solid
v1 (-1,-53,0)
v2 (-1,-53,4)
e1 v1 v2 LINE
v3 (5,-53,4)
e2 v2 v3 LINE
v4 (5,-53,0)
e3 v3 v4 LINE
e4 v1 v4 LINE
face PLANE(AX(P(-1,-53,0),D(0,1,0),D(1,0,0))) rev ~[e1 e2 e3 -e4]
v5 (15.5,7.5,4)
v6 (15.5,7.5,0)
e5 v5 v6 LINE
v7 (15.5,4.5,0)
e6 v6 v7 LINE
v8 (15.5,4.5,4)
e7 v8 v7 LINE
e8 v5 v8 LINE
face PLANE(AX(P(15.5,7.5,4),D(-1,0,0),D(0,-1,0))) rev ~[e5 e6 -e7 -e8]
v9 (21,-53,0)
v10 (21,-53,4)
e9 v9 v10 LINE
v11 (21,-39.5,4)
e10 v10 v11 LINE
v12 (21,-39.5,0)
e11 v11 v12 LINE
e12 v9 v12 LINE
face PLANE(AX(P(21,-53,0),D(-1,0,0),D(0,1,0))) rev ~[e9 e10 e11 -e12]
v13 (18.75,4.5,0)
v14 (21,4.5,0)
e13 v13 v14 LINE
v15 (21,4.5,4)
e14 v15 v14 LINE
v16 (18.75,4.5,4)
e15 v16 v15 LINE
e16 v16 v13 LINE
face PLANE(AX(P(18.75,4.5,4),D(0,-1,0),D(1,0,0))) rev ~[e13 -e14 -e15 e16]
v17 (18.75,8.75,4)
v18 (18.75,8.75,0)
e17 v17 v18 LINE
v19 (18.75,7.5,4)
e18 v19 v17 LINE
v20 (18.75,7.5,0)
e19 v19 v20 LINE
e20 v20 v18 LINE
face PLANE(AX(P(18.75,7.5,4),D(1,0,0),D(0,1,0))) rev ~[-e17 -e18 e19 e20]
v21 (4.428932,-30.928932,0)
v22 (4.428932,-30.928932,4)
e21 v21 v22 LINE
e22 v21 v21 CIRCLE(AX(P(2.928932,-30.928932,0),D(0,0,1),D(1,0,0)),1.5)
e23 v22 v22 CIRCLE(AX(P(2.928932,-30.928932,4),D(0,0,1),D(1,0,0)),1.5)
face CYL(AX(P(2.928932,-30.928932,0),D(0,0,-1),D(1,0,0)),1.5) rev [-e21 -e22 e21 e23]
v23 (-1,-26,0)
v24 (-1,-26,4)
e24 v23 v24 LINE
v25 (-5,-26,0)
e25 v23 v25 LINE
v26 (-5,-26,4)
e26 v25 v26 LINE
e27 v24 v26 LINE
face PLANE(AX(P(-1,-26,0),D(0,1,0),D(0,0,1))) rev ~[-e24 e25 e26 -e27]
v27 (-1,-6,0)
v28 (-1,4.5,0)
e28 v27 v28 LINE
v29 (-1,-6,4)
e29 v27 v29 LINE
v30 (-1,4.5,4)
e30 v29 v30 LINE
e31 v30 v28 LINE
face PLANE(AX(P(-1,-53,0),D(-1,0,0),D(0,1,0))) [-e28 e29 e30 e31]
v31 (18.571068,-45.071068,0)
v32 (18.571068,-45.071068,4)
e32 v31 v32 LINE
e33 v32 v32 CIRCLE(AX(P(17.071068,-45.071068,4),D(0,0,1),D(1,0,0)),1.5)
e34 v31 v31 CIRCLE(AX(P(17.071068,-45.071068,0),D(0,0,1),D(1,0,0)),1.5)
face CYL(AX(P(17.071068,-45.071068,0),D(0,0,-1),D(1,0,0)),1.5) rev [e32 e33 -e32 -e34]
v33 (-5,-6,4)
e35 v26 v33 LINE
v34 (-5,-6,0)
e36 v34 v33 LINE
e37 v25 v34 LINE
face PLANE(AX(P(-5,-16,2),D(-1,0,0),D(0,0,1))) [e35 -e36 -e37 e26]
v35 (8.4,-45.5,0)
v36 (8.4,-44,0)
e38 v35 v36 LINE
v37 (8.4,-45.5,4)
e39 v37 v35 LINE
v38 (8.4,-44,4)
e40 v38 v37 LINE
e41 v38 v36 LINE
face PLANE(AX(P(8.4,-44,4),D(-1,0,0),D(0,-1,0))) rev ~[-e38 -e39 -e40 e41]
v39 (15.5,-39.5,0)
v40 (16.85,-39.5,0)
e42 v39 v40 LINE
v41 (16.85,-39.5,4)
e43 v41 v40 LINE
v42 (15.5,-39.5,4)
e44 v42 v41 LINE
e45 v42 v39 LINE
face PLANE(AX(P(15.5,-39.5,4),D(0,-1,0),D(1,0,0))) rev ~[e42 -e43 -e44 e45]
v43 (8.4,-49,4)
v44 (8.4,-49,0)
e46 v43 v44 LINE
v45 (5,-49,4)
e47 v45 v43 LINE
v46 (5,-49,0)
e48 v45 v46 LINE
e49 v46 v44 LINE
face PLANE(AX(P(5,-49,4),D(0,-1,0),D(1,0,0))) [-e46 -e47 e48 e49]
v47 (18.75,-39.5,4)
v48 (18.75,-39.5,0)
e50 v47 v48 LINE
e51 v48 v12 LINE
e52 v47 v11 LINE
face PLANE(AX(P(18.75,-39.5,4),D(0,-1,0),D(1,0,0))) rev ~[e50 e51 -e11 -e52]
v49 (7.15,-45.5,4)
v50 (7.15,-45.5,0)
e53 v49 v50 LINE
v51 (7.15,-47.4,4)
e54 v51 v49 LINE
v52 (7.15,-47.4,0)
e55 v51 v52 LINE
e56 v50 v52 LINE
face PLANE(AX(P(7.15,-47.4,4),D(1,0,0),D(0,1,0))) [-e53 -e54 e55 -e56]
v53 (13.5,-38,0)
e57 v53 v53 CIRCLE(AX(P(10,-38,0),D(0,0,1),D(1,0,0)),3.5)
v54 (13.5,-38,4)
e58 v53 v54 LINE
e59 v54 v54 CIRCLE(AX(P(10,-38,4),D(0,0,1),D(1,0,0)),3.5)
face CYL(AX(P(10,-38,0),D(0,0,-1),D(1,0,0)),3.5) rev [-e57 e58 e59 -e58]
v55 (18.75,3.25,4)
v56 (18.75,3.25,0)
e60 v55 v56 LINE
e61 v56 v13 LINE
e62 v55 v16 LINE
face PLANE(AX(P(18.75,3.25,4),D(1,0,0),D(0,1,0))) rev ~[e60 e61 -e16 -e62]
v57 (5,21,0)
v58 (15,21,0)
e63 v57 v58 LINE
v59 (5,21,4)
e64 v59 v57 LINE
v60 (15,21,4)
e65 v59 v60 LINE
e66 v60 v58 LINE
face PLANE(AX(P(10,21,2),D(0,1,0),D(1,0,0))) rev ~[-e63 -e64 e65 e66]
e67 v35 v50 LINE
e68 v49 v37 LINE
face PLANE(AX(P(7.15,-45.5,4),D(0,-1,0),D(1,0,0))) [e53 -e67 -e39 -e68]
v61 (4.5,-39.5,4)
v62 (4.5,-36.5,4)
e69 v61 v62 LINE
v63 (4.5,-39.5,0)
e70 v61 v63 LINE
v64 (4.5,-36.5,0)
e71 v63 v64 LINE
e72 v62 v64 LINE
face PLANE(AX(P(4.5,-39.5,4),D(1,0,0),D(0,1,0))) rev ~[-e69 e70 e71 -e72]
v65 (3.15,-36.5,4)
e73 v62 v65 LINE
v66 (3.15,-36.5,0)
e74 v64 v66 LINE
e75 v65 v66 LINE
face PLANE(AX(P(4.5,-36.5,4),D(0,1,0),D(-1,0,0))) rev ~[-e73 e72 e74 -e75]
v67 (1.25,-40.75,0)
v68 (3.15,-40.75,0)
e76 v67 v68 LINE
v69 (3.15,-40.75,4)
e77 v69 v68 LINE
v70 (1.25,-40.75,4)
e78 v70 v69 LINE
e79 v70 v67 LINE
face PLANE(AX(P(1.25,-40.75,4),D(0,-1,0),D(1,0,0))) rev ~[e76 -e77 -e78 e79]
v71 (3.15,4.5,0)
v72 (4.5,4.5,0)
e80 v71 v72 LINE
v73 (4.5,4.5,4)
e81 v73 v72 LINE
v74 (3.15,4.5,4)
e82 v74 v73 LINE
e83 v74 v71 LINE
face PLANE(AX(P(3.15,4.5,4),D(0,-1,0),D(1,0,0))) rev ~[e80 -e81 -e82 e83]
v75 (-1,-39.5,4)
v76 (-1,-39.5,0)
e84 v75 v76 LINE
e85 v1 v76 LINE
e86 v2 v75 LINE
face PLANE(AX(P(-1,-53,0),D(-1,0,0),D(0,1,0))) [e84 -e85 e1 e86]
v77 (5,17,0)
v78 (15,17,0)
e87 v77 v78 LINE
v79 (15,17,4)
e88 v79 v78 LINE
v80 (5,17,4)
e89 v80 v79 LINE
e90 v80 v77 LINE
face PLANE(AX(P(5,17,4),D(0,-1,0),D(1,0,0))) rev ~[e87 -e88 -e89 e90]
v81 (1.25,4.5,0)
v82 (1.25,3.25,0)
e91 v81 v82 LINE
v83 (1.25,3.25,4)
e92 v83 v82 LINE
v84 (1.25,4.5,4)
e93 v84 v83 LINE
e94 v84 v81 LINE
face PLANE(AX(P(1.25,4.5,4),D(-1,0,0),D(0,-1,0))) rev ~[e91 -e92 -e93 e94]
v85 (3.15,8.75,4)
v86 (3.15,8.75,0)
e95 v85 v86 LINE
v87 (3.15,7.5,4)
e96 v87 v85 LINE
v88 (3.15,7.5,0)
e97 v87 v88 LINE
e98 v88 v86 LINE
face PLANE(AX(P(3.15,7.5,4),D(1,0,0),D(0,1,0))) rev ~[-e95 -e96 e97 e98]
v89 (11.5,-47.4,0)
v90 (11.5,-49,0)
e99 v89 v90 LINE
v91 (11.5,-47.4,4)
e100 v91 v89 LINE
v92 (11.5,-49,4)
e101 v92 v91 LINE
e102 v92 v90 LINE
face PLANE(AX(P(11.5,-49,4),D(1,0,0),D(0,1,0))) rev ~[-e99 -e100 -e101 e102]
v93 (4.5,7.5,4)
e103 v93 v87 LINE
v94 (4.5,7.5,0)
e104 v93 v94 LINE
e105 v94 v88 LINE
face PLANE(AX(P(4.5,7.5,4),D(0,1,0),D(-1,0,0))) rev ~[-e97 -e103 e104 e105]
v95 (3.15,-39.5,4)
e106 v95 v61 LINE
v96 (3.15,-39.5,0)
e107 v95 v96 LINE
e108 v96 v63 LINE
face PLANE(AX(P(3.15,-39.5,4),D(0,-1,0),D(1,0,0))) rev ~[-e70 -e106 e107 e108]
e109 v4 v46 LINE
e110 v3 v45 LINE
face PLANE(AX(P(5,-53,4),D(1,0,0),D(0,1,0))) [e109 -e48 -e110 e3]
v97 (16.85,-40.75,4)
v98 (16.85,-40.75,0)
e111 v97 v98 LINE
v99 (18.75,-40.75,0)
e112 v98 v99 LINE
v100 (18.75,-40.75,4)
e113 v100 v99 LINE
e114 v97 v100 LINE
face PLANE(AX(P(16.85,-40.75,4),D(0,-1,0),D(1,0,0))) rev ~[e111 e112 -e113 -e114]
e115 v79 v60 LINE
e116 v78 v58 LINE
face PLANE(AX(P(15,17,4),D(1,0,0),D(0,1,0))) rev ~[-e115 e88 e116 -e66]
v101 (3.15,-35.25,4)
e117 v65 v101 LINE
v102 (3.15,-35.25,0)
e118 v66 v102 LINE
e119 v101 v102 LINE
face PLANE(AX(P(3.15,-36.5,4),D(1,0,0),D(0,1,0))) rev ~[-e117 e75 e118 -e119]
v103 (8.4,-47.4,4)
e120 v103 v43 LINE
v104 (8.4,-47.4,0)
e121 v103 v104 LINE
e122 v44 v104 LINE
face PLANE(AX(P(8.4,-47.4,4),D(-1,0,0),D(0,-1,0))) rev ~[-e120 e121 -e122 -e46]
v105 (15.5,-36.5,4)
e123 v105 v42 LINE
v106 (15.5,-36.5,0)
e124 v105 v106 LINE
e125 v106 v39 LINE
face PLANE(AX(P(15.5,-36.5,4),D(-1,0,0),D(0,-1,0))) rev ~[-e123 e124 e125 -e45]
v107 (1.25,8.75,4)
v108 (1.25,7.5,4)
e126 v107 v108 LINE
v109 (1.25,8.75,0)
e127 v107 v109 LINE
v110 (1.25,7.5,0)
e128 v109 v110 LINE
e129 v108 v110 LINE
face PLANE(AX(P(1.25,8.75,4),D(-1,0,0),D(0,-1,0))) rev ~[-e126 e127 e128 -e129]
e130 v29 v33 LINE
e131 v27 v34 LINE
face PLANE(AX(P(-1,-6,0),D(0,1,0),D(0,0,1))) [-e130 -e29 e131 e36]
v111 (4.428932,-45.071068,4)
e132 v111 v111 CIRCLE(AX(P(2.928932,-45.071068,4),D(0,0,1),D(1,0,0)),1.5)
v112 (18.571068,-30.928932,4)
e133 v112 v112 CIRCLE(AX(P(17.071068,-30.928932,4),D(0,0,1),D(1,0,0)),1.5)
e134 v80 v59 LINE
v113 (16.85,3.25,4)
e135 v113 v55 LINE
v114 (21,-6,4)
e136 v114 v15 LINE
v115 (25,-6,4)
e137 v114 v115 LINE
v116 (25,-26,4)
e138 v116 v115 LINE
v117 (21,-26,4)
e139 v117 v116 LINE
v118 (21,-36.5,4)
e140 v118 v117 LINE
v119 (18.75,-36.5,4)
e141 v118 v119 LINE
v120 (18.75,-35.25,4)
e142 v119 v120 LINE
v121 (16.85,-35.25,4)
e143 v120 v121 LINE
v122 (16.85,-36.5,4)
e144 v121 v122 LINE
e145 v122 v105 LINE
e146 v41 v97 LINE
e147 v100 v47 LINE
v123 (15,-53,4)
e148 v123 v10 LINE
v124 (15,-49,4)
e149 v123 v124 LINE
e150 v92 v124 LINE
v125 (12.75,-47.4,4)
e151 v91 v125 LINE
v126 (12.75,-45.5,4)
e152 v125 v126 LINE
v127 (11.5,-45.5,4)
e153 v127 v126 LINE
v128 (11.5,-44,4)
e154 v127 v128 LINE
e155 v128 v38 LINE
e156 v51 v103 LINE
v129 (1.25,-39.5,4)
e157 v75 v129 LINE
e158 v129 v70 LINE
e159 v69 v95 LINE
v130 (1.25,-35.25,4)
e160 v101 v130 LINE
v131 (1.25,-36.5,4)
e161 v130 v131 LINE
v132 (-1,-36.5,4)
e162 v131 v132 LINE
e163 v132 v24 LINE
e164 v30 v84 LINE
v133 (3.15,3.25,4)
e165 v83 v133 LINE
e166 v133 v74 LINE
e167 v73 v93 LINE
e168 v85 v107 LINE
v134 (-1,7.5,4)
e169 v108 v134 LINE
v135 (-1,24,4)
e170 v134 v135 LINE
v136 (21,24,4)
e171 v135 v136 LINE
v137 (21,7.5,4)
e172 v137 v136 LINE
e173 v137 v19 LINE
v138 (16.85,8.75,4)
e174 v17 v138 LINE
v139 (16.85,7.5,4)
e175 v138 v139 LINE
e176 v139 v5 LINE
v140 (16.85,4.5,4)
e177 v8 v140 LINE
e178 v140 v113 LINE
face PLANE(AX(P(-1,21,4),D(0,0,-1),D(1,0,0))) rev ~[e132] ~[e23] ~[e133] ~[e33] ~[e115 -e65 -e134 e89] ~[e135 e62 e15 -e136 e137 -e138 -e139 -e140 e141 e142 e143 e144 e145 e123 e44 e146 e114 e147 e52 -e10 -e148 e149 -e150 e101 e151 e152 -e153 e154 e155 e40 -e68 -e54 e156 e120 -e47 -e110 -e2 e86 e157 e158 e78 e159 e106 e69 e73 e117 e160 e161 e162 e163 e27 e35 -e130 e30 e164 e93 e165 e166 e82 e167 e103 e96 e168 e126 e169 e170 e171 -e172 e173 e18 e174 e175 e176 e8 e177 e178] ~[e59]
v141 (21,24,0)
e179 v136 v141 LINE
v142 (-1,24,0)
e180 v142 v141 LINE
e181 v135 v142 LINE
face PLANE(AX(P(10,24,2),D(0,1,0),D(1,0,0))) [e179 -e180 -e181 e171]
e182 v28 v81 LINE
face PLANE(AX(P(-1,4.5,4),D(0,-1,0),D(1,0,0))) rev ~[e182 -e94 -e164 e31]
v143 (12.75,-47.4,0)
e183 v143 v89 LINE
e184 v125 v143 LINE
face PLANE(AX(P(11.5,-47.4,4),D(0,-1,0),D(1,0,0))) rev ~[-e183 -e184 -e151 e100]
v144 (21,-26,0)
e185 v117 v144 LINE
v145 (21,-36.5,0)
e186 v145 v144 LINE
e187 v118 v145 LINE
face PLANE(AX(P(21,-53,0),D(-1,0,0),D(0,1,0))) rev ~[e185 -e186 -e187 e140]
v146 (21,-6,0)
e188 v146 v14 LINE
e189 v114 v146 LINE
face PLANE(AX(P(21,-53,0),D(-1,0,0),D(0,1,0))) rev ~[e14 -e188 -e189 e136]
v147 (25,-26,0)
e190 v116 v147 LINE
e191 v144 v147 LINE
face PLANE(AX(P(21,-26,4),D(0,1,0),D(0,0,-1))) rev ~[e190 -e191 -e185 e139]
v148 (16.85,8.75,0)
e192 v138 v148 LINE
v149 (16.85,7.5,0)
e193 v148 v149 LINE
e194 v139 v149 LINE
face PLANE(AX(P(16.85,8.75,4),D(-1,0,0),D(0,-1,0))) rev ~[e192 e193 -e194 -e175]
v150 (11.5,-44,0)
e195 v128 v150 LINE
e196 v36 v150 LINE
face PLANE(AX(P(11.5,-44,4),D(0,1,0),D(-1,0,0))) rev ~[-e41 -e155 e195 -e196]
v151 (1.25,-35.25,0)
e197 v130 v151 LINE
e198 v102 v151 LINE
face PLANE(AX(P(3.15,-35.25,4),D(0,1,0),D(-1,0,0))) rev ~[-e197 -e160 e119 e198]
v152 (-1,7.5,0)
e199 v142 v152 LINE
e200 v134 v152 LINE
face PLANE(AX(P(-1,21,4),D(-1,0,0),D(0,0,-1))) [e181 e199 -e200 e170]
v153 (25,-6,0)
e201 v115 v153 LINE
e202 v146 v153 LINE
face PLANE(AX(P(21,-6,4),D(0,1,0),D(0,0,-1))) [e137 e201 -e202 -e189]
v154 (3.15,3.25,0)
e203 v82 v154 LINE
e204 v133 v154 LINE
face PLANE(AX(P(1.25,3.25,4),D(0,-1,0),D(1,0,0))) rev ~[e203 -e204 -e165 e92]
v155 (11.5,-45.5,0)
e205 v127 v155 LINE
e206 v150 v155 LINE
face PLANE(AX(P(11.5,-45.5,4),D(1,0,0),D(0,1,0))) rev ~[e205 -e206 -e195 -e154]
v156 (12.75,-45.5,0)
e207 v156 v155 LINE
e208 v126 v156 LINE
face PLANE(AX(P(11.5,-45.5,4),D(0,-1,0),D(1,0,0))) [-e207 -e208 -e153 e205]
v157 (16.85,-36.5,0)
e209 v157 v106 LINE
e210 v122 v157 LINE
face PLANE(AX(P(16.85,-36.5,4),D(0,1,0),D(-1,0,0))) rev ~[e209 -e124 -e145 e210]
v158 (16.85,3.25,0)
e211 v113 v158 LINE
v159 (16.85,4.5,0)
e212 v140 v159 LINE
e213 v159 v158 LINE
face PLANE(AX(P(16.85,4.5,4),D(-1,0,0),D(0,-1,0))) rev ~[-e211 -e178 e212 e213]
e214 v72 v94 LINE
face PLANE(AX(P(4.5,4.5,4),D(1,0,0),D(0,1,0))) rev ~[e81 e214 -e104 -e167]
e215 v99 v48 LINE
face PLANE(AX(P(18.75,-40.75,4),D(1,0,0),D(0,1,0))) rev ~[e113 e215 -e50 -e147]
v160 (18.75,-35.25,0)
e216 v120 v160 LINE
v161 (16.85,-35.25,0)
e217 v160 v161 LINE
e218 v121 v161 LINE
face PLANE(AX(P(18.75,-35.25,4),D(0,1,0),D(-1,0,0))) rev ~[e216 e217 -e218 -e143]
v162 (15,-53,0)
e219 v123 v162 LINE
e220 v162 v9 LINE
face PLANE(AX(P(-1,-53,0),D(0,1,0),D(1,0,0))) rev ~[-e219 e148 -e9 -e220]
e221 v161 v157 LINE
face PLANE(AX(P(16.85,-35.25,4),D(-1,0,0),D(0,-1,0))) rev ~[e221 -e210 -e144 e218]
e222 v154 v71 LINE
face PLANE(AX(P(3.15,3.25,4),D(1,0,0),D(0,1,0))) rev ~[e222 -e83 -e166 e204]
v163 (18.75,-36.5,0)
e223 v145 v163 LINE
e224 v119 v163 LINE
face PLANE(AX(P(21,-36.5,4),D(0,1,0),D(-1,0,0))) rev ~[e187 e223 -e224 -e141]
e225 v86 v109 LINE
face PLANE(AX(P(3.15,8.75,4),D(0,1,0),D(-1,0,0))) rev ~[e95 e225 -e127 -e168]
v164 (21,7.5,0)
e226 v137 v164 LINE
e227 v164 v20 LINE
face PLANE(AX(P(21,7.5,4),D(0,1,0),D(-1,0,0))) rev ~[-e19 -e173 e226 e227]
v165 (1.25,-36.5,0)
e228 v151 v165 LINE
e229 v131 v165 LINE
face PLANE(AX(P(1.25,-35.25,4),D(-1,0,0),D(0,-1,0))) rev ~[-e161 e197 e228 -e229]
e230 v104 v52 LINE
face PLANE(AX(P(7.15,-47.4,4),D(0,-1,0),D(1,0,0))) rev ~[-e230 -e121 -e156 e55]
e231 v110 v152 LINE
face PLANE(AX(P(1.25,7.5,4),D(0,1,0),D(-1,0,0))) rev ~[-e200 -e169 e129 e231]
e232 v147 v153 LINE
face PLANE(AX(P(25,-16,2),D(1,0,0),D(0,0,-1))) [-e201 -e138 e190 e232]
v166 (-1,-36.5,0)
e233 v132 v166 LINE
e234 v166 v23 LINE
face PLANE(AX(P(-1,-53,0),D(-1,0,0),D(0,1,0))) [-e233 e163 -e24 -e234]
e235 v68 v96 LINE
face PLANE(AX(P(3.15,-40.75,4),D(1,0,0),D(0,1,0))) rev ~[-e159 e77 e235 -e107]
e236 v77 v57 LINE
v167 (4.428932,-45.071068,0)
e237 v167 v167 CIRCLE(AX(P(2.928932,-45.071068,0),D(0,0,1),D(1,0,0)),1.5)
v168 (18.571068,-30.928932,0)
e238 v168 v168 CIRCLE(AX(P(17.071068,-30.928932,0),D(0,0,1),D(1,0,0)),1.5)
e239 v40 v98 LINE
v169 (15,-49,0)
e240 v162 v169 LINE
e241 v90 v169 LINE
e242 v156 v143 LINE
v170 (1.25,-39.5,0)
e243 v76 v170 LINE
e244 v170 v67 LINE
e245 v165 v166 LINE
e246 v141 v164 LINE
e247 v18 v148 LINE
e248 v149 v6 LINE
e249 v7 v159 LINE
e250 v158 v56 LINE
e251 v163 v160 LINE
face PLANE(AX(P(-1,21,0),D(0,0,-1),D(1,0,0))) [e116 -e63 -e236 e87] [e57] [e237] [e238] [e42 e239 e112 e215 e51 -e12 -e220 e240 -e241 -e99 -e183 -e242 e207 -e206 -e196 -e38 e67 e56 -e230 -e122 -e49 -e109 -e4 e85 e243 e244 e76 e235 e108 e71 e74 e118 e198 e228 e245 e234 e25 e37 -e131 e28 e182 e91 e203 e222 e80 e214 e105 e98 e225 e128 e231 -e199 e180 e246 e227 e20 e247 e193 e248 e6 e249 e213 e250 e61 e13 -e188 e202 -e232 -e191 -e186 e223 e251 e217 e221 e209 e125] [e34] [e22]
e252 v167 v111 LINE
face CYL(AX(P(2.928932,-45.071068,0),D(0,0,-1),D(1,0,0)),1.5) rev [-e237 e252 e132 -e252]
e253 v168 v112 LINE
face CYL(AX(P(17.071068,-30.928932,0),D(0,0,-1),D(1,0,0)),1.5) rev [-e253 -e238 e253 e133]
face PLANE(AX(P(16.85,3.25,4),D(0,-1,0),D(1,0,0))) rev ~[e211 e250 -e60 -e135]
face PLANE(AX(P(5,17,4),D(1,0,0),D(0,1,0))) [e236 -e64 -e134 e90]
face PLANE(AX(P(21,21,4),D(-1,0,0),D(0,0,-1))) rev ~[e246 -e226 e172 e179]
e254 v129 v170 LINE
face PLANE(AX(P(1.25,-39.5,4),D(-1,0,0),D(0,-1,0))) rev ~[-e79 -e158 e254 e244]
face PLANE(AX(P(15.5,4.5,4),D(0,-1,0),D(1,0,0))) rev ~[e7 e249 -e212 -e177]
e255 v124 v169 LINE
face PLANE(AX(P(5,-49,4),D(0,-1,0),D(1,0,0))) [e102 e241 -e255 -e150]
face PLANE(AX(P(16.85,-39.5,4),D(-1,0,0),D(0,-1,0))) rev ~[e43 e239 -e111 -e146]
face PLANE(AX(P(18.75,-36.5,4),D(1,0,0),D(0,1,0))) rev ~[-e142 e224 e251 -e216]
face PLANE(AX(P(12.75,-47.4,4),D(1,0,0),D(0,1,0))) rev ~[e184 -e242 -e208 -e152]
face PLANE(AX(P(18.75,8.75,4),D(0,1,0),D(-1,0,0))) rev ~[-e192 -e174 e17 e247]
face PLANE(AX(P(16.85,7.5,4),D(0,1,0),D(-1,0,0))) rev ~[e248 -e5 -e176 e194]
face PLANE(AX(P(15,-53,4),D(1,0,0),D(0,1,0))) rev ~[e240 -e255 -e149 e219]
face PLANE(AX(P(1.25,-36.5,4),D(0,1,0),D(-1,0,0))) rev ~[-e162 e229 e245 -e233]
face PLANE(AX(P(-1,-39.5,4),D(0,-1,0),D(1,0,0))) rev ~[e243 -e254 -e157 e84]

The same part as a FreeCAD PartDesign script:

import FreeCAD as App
import Part
import Sketcher

V = App.Vector

doc = App.newDocument("Part")
body = doc.addObject("PartDesign::Body", "Body")

# Sketch on XY plane
sketch1 = body.newObject("Sketcher::SketchObject", "Sketch")
sketch1.AttachmentSupport = (doc.getObject("XY_Plane"), [""])
sketch1.MapMode = "FlatFace"
sketch1.addGeometry([
    Part.LineSegment(V(-1, 21, 0), V(-1, -53, 0)),  # 0
    Part.LineSegment(V(-1, -53, 0), V(21, -53, 0)),  # 1
    Part.LineSegment(V(21, -53, 0), V(21, 21, 0)),  # 2
    Part.LineSegment(V(21, 21, 0), V(-1, 21, 0)),  # 3
    Part.Circle(V(10, -38, 0), V(0, 0, 1), 3.5),  # 4
], False)
sketch1.addConstraint([
    Sketcher.Constraint("Coincident", 0, 2, 1, 1),
    Sketcher.Constraint("Coincident", 1, 2, 2, 1),
    Sketcher.Constraint("Coincident", 2, 2, 3, 1),
    Sketcher.Constraint("Coincident", 3, 2, 0, 1),
    Sketcher.Constraint("Vertical", 0),
    Sketcher.Constraint("Horizontal", 1),
    Sketcher.Constraint("Vertical", 2),
    Sketcher.Constraint("Horizontal", 3),
    Sketcher.Constraint("Diameter", 4, 7.0),
    Sketcher.Constraint("DistanceX", 1, 1, 1, 2, 22.0),
    Sketcher.Constraint("DistanceY", 0, 2, 0, 1, 74.0),
    Sketcher.Constraint("DistanceX", -1, 1, 4, 3, 10.0),
    Sketcher.Constraint("DistanceY", 4, 3, -1, 1, 38.0),
    Sketcher.Constraint("DistanceX", 0, 2, -1, 1, 1.0),
    Sketcher.Constraint("DistanceY", 0, 2, -1, 1, 53.0),
])
pad1 = body.newObject("PartDesign::Pad", "Pad")
pad1.Profile = sketch1
pad1.Length = 4

# Sketch on XY plane
sketch2 = body.newObject("Sketcher::SketchObject", "Sketch001")
sketch2.AttachmentSupport = (doc.getObject("XY_Plane"), [""])
sketch2.MapMode = "FlatFace"
sketch2.addGeometry([
    Part.Circle(V(10, -38, 0), V(0, 0, 1), 3.5),  # 0
    Part.Circle(V(2.9, -30.9, 0), V(0, 0, 1), 1.5),  # 1
    Part.Circle(V(17.1, -30.9, 0), V(0, 0, 1), 1.5),  # 2
    Part.Circle(V(17.1, -45.1, 0), V(0, 0, 1), 1.5),  # 3
    Part.Circle(V(2.9, -45.1, 0), V(0, 0, 1), 1.5),  # 4
], False)
sketch2.addConstraint([
    Sketcher.Constraint("Equal", 1, 2),
    Sketcher.Constraint("Equal", 2, 3),
    Sketcher.Constraint("Equal", 3, 4),
    Sketcher.Constraint("Horizontal", 1, 3, 2, 3),
    Sketcher.Constraint("Horizontal", 3, 3, 4, 3),
    Sketcher.Constraint("Vertical", 2, 3, 3, 3),
    Sketcher.Constraint("Vertical", 1, 3, 4, 3),
    Sketcher.Constraint("Diameter", 0, 7.0),
    Sketcher.Constraint("Diameter", 1, 3.0),
    Sketcher.Constraint("DistanceX", -1, 1, 0, 3, 10.0),
    Sketcher.Constraint("DistanceY", 0, 3, -1, 1, 38.0),
    Sketcher.Constraint("DistanceX", -1, 1, 1, 3, 2.928932),
    Sketcher.Constraint("DistanceY", 1, 3, -1, 1, 30.928932),
    Sketcher.Constraint("DistanceX", -1, 1, 2, 3, 17.071068),
    Sketcher.Constraint("DistanceY", 3, 3, -1, 1, 45.071068),
])
pocket1 = body.newObject("PartDesign::Pocket", "Pocket")
pocket1.Profile = sketch2
pocket1.Length = 4
pocket1.Reversed = True

# Sketch on XY plane
sketch3 = body.newObject("Sketcher::SketchObject", "Sketch002")
sketch3.AttachmentSupport = (doc.getObject("XY_Plane"), [""])
sketch3.MapMode = "FlatFace"
sketch3.AttachmentOffset = App.Placement(V(0, 0, 4), App.Rotation())
sketch3.addGeometry([
    Part.LineSegment(V(1.2, -36.5, 0), V(-1, -36.5, 0)),  # 0
    Part.LineSegment(V(-1, -36.5, 0), V(-1, -39.5, 0)),  # 1
    Part.LineSegment(V(-1, -39.5, 0), V(1.2, -39.5, 0)),  # 2
    Part.LineSegment(V(1.2, -39.5, 0), V(1.2, -40.8, 0)),  # 3
    Part.LineSegment(V(1.2, -40.8, 0), V(3.1, -40.8, 0)),  # 4
    Part.LineSegment(V(3.1, -40.8, 0), V(3.1, -39.5, 0)),  # 5
    Part.LineSegment(V(3.1, -39.5, 0), V(4.5, -39.5, 0)),  # 6
    Part.LineSegment(V(4.5, -39.5, 0), V(4.5, -36.5, 0)),  # 7
    Part.LineSegment(V(4.5, -36.5, 0), V(3.1, -36.5, 0)),  # 8
    Part.LineSegment(V(3.1, -36.5, 0), V(3.1, -35.2, 0)),  # 9
    Part.LineSegment(V(3.1, -35.2, 0), V(1.2, -35.2, 0)),  # 10
    Part.LineSegment(V(1.2, -35.2, 0), V(1.2, -36.5, 0)),  # 11
    Part.LineSegment(V(18.8, -39.5, 0), V(21, -39.5, 0)),  # 12
    Part.LineSegment(V(21, -39.5, 0), V(21, -36.5, 0)),  # 13
    Part.LineSegment(V(21, -36.5, 0), V(18.8, -36.5, 0)),  # 14
    Part.LineSegment(V(18.8, -36.5, 0), V(18.8, -35.2, 0)),  # 15
    Part.LineSegment(V(18.8, -35.2, 0), V(16.9, -35.2, 0)),  # 16
    Part.LineSegment(V(16.9, -35.2, 0), V(16.9, -36.5, 0)),  # 17
    Part.LineSegment(V(16.9, -36.5, 0), V(15.5, -36.5, 0)),  # 18
    Part.LineSegment(V(15.5, -36.5, 0), V(15.5, -39.5, 0)),  # 19
    Part.LineSegment(V(15.5, -39.5, 0), V(16.9, -39.5, 0)),  # 20
    Part.LineSegment(V(16.9, -39.5, 0), V(16.9, -40.8, 0)),  # 21
    Part.LineSegment(V(16.9, -40.8, 0), V(18.8, -40.8, 0)),  # 22
    Part.LineSegment(V(18.8, -40.8, 0), V(18.8, -39.5, 0)),  # 23
    Part.LineSegment(V(16.9, 3.2, 0), V(18.8, 3.2, 0)),  # 24
    Part.LineSegment(V(18.8, 3.2, 0), V(18.8, 4.5, 0)),  # 25
    Part.LineSegment(V(18.8, 4.5, 0), V(21, 4.5, 0)),  # 26
    Part.LineSegment(V(21, 4.5, 0), V(21, 7.5, 0)),  # 27
    Part.LineSegment(V(21, 7.5, 0), V(18.8, 7.5, 0)),  # 28
    Part.LineSegment(V(18.8, 7.5, 0), V(18.8, 8.8, 0)),  # 29
    Part.LineSegment(V(18.8, 8.8, 0), V(16.9, 8.8, 0)),  # 30
    Part.LineSegment(V(16.9, 8.8, 0), V(16.9, 7.5, 0)),  # 31
    Part.LineSegment(V(16.9, 7.5, 0), V(15.5, 7.5, 0)),  # 32
    Part.LineSegment(V(15.5, 7.5, 0), V(15.5, 4.5, 0)),  # 33
    Part.LineSegment(V(15.5, 4.5, 0), V(16.9, 4.5, 0)),  # 34
    Part.LineSegment(V(16.9, 4.5, 0), V(16.9, 3.2, 0)),  # 35
    Part.LineSegment(V(1.2, 3.2, 0), V(3.1, 3.2, 0)),  # 36
    Part.LineSegment(V(3.1, 3.2, 0), V(3.1, 4.5, 0)),  # 37
    Part.LineSegment(V(3.1, 4.5, 0), V(4.5, 4.5, 0)),  # 38
    Part.LineSegment(V(4.5, 4.5, 0), V(4.5, 7.5, 0)),  # 39
    Part.LineSegment(V(4.5, 7.5, 0), V(3.1, 7.5, 0)),  # 40
    Part.LineSegment(V(3.1, 7.5, 0), V(3.1, 8.8, 0)),  # 41
    Part.LineSegment(V(3.1, 8.8, 0), V(1.2, 8.8, 0)),  # 42
    Part.LineSegment(V(1.2, 8.8, 0), V(1.2, 7.5, 0)),  # 43
    Part.LineSegment(V(1.2, 7.5, 0), V(-1, 7.5, 0)),  # 44
    Part.LineSegment(V(-1, 7.5, 0), V(-1, 4.5, 0)),  # 45
    Part.LineSegment(V(-1, 4.5, 0), V(1.2, 4.5, 0)),  # 46
    Part.LineSegment(V(1.2, 4.5, 0), V(1.2, 3.2, 0)),  # 47
], False)
sketch3.addConstraint([
    Sketcher.Constraint("Coincident", 0, 2, 1, 1),
    Sketcher.Constraint("Coincident", 1, 2, 2, 1),
    Sketcher.Constraint("Coincident", 2, 2, 3, 1),
    Sketcher.Constraint("Coincident", 3, 2, 4, 1),
    Sketcher.Constraint("Coincident", 4, 2, 5, 1),
    Sketcher.Constraint("Coincident", 5, 2, 6, 1),
    Sketcher.Constraint("Coincident", 6, 2, 7, 1),
    Sketcher.Constraint("Coincident", 7, 2, 8, 1),
    Sketcher.Constraint("Coincident", 8, 2, 9, 1),
    Sketcher.Constraint("Coincident", 9, 2, 10, 1),
    Sketcher.Constraint("Coincident", 10, 2, 11, 1),
    Sketcher.Constraint("Coincident", 11, 2, 0, 1),
    Sketcher.Constraint("Coincident", 12, 2, 13, 1),
    Sketcher.Constraint("Coincident", 13, 2, 14, 1),
    Sketcher.Constraint("Coincident", 14, 2, 15, 1),
    Sketcher.Constraint("Coincident", 15, 2, 16, 1),
    Sketcher.Constraint("Coincident", 16, 2, 17, 1),
    Sketcher.Constraint("Coincident", 17, 2, 18, 1),
    Sketcher.Constraint("Coincident", 18, 2, 19, 1),
    Sketcher.Constraint("Coincident", 19, 2, 20, 1),
    Sketcher.Constraint("Coincident", 20, 2, 21, 1),
    Sketcher.Constraint("Coincident", 21, 2, 22, 1),
    Sketcher.Constraint("Coincident", 22, 2, 23, 1),
    Sketcher.Constraint("Coincident", 23, 2, 12, 1),
    Sketcher.Constraint("Coincident", 24, 2, 25, 1),
    Sketcher.Constraint("Coincident", 25, 2, 26, 1),
    Sketcher.Constraint("Coincident", 26, 2, 27, 1),
    Sketcher.Constraint("Coincident", 27, 2, 28, 1),
    Sketcher.Constraint("Coincident", 28, 2, 29, 1),
    Sketcher.Constraint("Coincident", 29, 2, 30, 1),
    Sketcher.Constraint("Coincident", 30, 2, 31, 1),
    Sketcher.Constraint("Coincident", 31, 2, 32, 1),
    Sketcher.Constraint("Coincident", 32, 2, 33, 1),
    Sketcher.Constraint("Coincident", 33, 2, 34, 1),
    Sketcher.Constraint("Coincident", 34, 2, 35, 1),
    Sketcher.Constraint("Coincident", 35, 2, 24, 1),
    Sketcher.Constraint("Coincident", 36, 2, 37, 1),
    Sketcher.Constraint("Coincident", 37, 2, 38, 1),
    Sketcher.Constraint("Coincident", 38, 2, 39, 1),
    Sketcher.Constraint("Coincident", 39, 2, 40, 1),
    Sketcher.Constraint("Coincident", 40, 2, 41, 1),
    Sketcher.Constraint("Coincident", 41, 2, 42, 1),
    Sketcher.Constraint("Coincident", 42, 2, 43, 1),
    Sketcher.Constraint("Coincident", 43, 2, 44, 1),
    Sketcher.Constraint("Coincident", 44, 2, 45, 1),
    Sketcher.Constraint("Coincident", 45, 2, 46, 1),
    Sketcher.Constraint("Coincident", 46, 2, 47, 1),
    Sketcher.Constraint("Coincident", 47, 2, 36, 1),
    Sketcher.Constraint("Horizontal", 0),
    Sketcher.Constraint("Vertical", 1),
    Sketcher.Constraint("Horizontal", 2),
    Sketcher.Constraint("Vertical", 3),
    Sketcher.Constraint("Horizontal", 4),
    Sketcher.Constraint("Vertical", 5),
    Sketcher.Constraint("Horizontal", 6),
    Sketcher.Constraint("Vertical", 7),
    Sketcher.Constraint("Horizontal", 8),
    Sketcher.Constraint("Vertical", 9),
    Sketcher.Constraint("Horizontal", 10),
    Sketcher.Constraint("Vertical", 11),
    Sketcher.Constraint("Horizontal", 12),
    Sketcher.Constraint("Vertical", 13),
    Sketcher.Constraint("Horizontal", 14),
    Sketcher.Constraint("Vertical", 15),
    Sketcher.Constraint("Horizontal", 16),
    Sketcher.Constraint("Vertical", 17),
    Sketcher.Constraint("Horizontal", 18),
    Sketcher.Constraint("Vertical", 19),
    Sketcher.Constraint("Horizontal", 20),
    Sketcher.Constraint("Vertical", 21),
    Sketcher.Constraint("Horizontal", 22),
    Sketcher.Constraint("Vertical", 23),
    Sketcher.Constraint("Horizontal", 24),
    Sketcher.Constraint("Vertical", 25),
    Sketcher.Constraint("Horizontal", 26),
    Sketcher.Constraint("Vertical", 27),
    Sketcher.Constraint("Horizontal", 28),
    Sketcher.Constraint("Vertical", 29),
    Sketcher.Constraint("Horizontal", 30),
    Sketcher.Constraint("Vertical", 31),
    Sketcher.Constraint("Horizontal", 32),
    Sketcher.Constraint("Vertical", 33),
    Sketcher.Constraint("Horizontal", 34),
    Sketcher.Constraint("Vertical", 35),
    Sketcher.Constraint("Horizontal", 36),
    Sketcher.Constraint("Vertical", 37),
    Sketcher.Constraint("Horizontal", 38),
    Sketcher.Constraint("Vertical", 39),
    Sketcher.Constraint("Horizontal", 40),
    Sketcher.Constraint("Vertical", 41),
    Sketcher.Constraint("Horizontal", 42),
    Sketcher.Constraint("Vertical", 43),
    Sketcher.Constraint("Horizontal", 44),
    Sketcher.Constraint("Vertical", 45),
    Sketcher.Constraint("Horizontal", 46),
    Sketcher.Constraint("Vertical", 47),
    Sketcher.Constraint("Horizontal", 2, 2, 5, 2),
    Sketcher.Constraint("Horizontal", 0, 2, 7, 2),
    Sketcher.Constraint("Horizontal", 6, 2, 12, 2),
    Sketcher.Constraint("Horizontal", 11, 2, 13, 2),
    Sketcher.Constraint("Horizontal", 10, 2, 15, 2),
    Sketcher.Constraint("Horizontal", 14, 2, 17, 2),
    Sketcher.Constraint("Horizontal", 12, 2, 19, 2),
    Sketcher.Constraint("Horizontal", 4, 2, 21, 2),
    Sketcher.Constraint("Horizontal", 28, 2, 31, 2),
    Sketcher.Constraint("Horizontal", 26, 2, 33, 2),
    Sketcher.Constraint("Horizontal", 35, 2, 36, 2),
    Sketcher.Constraint("Horizontal", 34, 2, 37, 2),
    Sketcher.Constraint("Horizontal", 32, 2, 39, 2),
    Sketcher.Constraint("Horizontal", 30, 2, 41, 2),
    Sketcher.Constraint("Horizontal", 40, 2, 43, 2),
    Sketcher.Constraint("Horizontal", 38, 2, 45, 2),
    Sketcher.Constraint("Vertical", 5, 2, 8, 2),
    Sketcher.Constraint("Vertical", 3, 2, 10, 2),
    Sketcher.Constraint("Vertical", 17, 2, 20, 2),
    Sketcher.Constraint("Vertical", 15, 2, 22, 2),
    Sketcher.Constraint("Vertical", 23, 2, 24, 2),
    Sketcher.Constraint("Vertical", 13, 2, 26, 2),
    Sketcher.Constraint("Vertical", 25, 2, 28, 2),
    Sketcher.Constraint("Vertical", 21, 2, 30, 2),
    Sketcher.Constraint("Vertical", 19, 2, 32, 2),
    Sketcher.Constraint("Vertical", 31, 2, 34, 2),
    Sketcher.Constraint("Vertical", 9, 2, 36, 2),
    Sketcher.Constraint("Vertical", 7, 2, 38, 2),
    Sketcher.Constraint("Vertical", 37, 2, 40, 2),
    Sketcher.Constraint("Vertical", 11, 2, 42, 2),
    Sketcher.Constraint("Vertical", 1, 2, 44, 2),
    Sketcher.Constraint("Vertical", 43, 2, 46, 2),
    Sketcher.Constraint("Equal", 2, 12),
    Sketcher.Constraint("Equal", 10, 16),
    Sketcher.Constraint("Equal", 8, 18),
    Sketcher.Constraint("Equal", 5, 9),
    Sketcher.Constraint("Equal", 23, 25),
    Sketcher.Constraint("Equal", 19, 27),
    Sketcher.Constraint("Equal", 25, 29),
    Sketcher.Constraint("DistanceY", 1, 2, 1, 1, 3.0),
    Sketcher.Constraint("DistanceX", 4, 1, 4, 2, 1.9),
    Sketcher.Constraint("DistanceX", 0, 2, -1, 1, 1.0),
    Sketcher.Constraint("DistanceX", -1, 1, 12, 2, 21.0),
    Sketcher.Constraint("DistanceY", 14, 2, 25, 2, 41.0),
    Sketcher.Constraint("DistanceX", 38, 2, 33, 2, 11.0),
    Sketcher.Constraint("DistanceX", 0, 2, 0, 1, 2.25),
    Sketcher.Constraint("DistanceY", 3, 2, 3, 1, 1.25),
    Sketcher.Constraint("DistanceY", 0, 2, -1, 1, 36.5),
])
pocket2 = body.newObject("PartDesign::Pocket", "Pocket001")
pocket2.Profile = sketch3
pocket2.Length = 4

# Sketch on XY plane
sketch4 = body.newObject("Sketcher::SketchObject", "Sketch003")
sketch4.AttachmentSupport = (doc.getObject("XY_Plane"), [""])
sketch4.MapMode = "FlatFace"
sketch4.AttachmentOffset = App.Placement(V(0, 0, 4), App.Rotation())
sketch4.addGeometry([
    Part.LineSegment(V(5, -49, 0), V(5, -53, 0)),  # 0
    Part.LineSegment(V(5, -53, 0), V(15, -53, 0)),  # 1
    Part.LineSegment(V(15, -53, 0), V(15, -49, 0)),  # 2
    Part.LineSegment(V(15, -49, 0), V(5, -49, 0)),  # 3
    Part.LineSegment(V(5, 21, 0), V(5, 17, 0)),  # 4
    Part.LineSegment(V(5, 17, 0), V(15, 17, 0)),  # 5
    Part.LineSegment(V(15, 17, 0), V(15, 21, 0)),  # 6
    Part.LineSegment(V(15, 21, 0), V(5, 21, 0)),  # 7
], False)
sketch4.addConstraint([
    Sketcher.Constraint("Coincident", 0, 2, 1, 1),
    Sketcher.Constraint("Coincident", 1, 2, 2, 1),
    Sketcher.Constraint("Coincident", 2, 2, 3, 1),
    Sketcher.Constraint("Coincident", 3, 2, 0, 1),
    Sketcher.Constraint("Coincident", 4, 2, 5, 1),
    Sketcher.Constraint("Coincident", 5, 2, 6, 1),
    Sketcher.Constraint("Coincident", 6, 2, 7, 1),
    Sketcher.Constraint("Coincident", 7, 2, 4, 1),
    Sketcher.Constraint("Vertical", 0),
    Sketcher.Constraint("Horizontal", 1),
    Sketcher.Constraint("Vertical", 2),
    Sketcher.Constraint("Horizontal", 3),
    Sketcher.Constraint("Vertical", 4),
    Sketcher.Constraint("Horizontal", 5),
    Sketcher.Constraint("Vertical", 6),
    Sketcher.Constraint("Horizontal", 7),
    Sketcher.Constraint("Vertical", 3, 2, 4, 2),
    Sketcher.Constraint("Vertical", 2, 2, 5, 2),
    Sketcher.Constraint("Equal", 2, 4),
    Sketcher.Constraint("DistanceX", 1, 1, 1, 2, 10.0),
    Sketcher.Constraint("DistanceY", 0, 2, 0, 1, 4.0),
    Sketcher.Constraint("DistanceX", -1, 1, 0, 2, 5.0),
    Sketcher.Constraint("DistanceY", 0, 2, -1, 1, 53.0),
    Sketcher.Constraint("DistanceY", -1, 1, 4, 2, 17.0),
])
pocket3 = body.newObject("PartDesign::Pocket", "Pocket002")
pocket3.Profile = sketch4
pocket3.Length = 4

# Sketch on YZ plane
sketch5 = body.newObject("Sketcher::SketchObject", "Sketch004")
sketch5.AttachmentSupport = (doc.getObject("YZ_Plane"), [""])
sketch5.MapMode = "FlatFace"
sketch5.AttachmentOffset = App.Placement(V(0, 0, -1), App.Rotation())
sketch5.addGeometry([
    Part.LineSegment(V(-6, 0, 0), V(-26, 0, 0)),
    Part.LineSegment(V(-26, 0, 0), V(-26, 4, 0)),
    Part.LineSegment(V(-26, 4, 0), V(-6, 4, 0)),
    Part.LineSegment(V(-6, 4, 0), V(-6, 0, 0)),
], False)
sketch5.addConstraint([
    Sketcher.Constraint("Coincident", 0, 2, 1, 1),
    Sketcher.Constraint("Coincident", 1, 2, 2, 1),
    Sketcher.Constraint("Coincident", 2, 2, 3, 1),
    Sketcher.Constraint("Coincident", 3, 2, 0, 1),
    Sketcher.Constraint("Horizontal", 0),
    Sketcher.Constraint("Vertical", 1),
    Sketcher.Constraint("Horizontal", 2),
    Sketcher.Constraint("Vertical", 3),
    Sketcher.Constraint("PointOnObject", 0, 2, -1),
    Sketcher.Constraint("DistanceX", 0, 2, 0, 1, 20.0),
    Sketcher.Constraint("DistanceY", 1, 1, 1, 2, 4.0),
    Sketcher.Constraint("DistanceX", 0, 2, -1, 1, 26.0),
])
pad2 = body.newObject("PartDesign::Pad", "Pad001")
pad2.Profile = sketch5
pad2.Length = 4
pad2.Reversed = True

# Sketch on YZ plane
sketch6 = body.newObject("Sketcher::SketchObject", "Sketch005")
sketch6.AttachmentSupport = (doc.getObject("YZ_Plane"), [""])
sketch6.MapMode = "FlatFace"
sketch6.AttachmentOffset = App.Placement(V(0, 0, 21), App.Rotation())
sketch6.addGeometry([
    Part.LineSegment(V(-6, 4, 0), V(-26, 4, 0)),
    Part.LineSegment(V(-26, 4, 0), V(-26, 0, 0)),
    Part.LineSegment(V(-26, 0, 0), V(-6, 0, 0)),
    Part.LineSegment(V(-6, 0, 0), V(-6, 4, 0)),
], False)
sketch6.addConstraint([
    Sketcher.Constraint("Coincident", 0, 2, 1, 1),
    Sketcher.Constraint("Coincident", 1, 2, 2, 1),
    Sketcher.Constraint("Coincident", 2, 2, 3, 1),
    Sketcher.Constraint("Coincident", 3, 2, 0, 1),
    Sketcher.Constraint("Horizontal", 0),
    Sketcher.Constraint("Vertical", 1),
    Sketcher.Constraint("Horizontal", 2),
    Sketcher.Constraint("Vertical", 3),
    Sketcher.Constraint("PointOnObject", 1, 2, -1),
    Sketcher.Constraint("DistanceX", 0, 2, 0, 1, 20.0),
    Sketcher.Constraint("DistanceY", 1, 2, 1, 1, 4.0),
    Sketcher.Constraint("DistanceX", 0, 2, -1, 1, 26.0),
])
pad3 = body.newObject("PartDesign::Pad", "Pad002")
pad3.Profile = sketch6
pad3.Length = 4

# Sketch on XZ plane
sketch7 = body.newObject("Sketcher::SketchObject", "Sketch006")
sketch7.AttachmentSupport = (doc.getObject("XZ_Plane"), [""])
sketch7.MapMode = "FlatFace"
sketch7.AttachmentOffset = App.Placement(V(0, 0, -21), App.Rotation())
sketch7.addGeometry([
    Part.LineSegment(V(-1, 0, 0), V(-1, 4, 0)),
    Part.LineSegment(V(-1, 4, 0), V(21, 4, 0)),
    Part.LineSegment(V(21, 4, 0), V(21, 0, 0)),
    Part.LineSegment(V(21, 0, 0), V(-1, 0, 0)),
], False)
sketch7.addConstraint([
    Sketcher.Constraint("Coincident", 0, 2, 1, 1),
    Sketcher.Constraint("Coincident", 1, 2, 2, 1),
    Sketcher.Constraint("Coincident", 2, 2, 3, 1),
    Sketcher.Constraint("Coincident", 3, 2, 0, 1),
    Sketcher.Constraint("Vertical", 0),
    Sketcher.Constraint("Horizontal", 1),
    Sketcher.Constraint("Vertical", 2),
    Sketcher.Constraint("Horizontal", 3),
    Sketcher.Constraint("PointOnObject", 2, 2, -1),
    Sketcher.Constraint("DistanceX", 1, 1, 1, 2, 22.0),
    Sketcher.Constraint("DistanceY", 0, 1, 0, 2, 4.0),
    Sketcher.Constraint("DistanceX", 0, 2, -1, 1, 1.0),
])
pad4 = body.newObject("PartDesign::Pad", "Pad003")
pad4.Profile = sketch7
pad4.Length = 3
pad4.Reversed = True

# Sketch on XY plane
sketch8 = body.newObject("Sketcher::SketchObject", "Sketch007")
sketch8.AttachmentSupport = (doc.getObject("XY_Plane"), [""])
sketch8.MapMode = "FlatFace"
sketch8.AttachmentOffset = App.Placement(V(0, 0, 4), App.Rotation())
sketch8.addGeometry([
    Part.LineSegment(V(8.4, -44, 0), V(8.4, -45.5, 0)),  # 0
    Part.LineSegment(V(8.4, -45.5, 0), V(7.2, -45.5, 0)),  # 1
    Part.LineSegment(V(7.2, -45.5, 0), V(7.2, -47.4, 0)),  # 2
    Part.LineSegment(V(7.2, -47.4, 0), V(8.4, -47.4, 0)),  # 3
    Part.LineSegment(V(8.4, -47.4, 0), V(8.4, -49, 0)),  # 4
    Part.LineSegment(V(8.4, -49, 0), V(11.5, -49, 0)),  # 5
    Part.LineSegment(V(11.5, -49, 0), V(11.5, -47.4, 0)),  # 6
    Part.LineSegment(V(11.5, -47.4, 0), V(12.8, -47.4, 0)),  # 7
    Part.LineSegment(V(12.8, -47.4, 0), V(12.8, -45.5, 0)),  # 8
    Part.LineSegment(V(12.8, -45.5, 0), V(11.5, -45.5, 0)),  # 9
    Part.LineSegment(V(11.5, -45.5, 0), V(11.5, -44, 0)),  # 10
    Part.LineSegment(V(11.5, -44, 0), V(8.4, -44, 0)),  # 11
], False)
sketch8.addConstraint([
    Sketcher.Constraint("Coincident", 0, 2, 1, 1),
    Sketcher.Constraint("Coincident", 1, 2, 2, 1),
    Sketcher.Constraint("Coincident", 2, 2, 3, 1),
    Sketcher.Constraint("Coincident", 3, 2, 4, 1),
    Sketcher.Constraint("Coincident", 4, 2, 5, 1),
    Sketcher.Constraint("Coincident", 5, 2, 6, 1),
    Sketcher.Constraint("Coincident", 6, 2, 7, 1),
    Sketcher.Constraint("Coincident", 7, 2, 8, 1),
    Sketcher.Constraint("Coincident", 8, 2, 9, 1),
    Sketcher.Constraint("Coincident", 9, 2, 10, 1),
    Sketcher.Constraint("Coincident", 10, 2, 11, 1),
    Sketcher.Constraint("Coincident", 11, 2, 0, 1),
    Sketcher.Constraint("Vertical", 0),
    Sketcher.Constraint("Horizontal", 1),
    Sketcher.Constraint("Vertical", 2),
    Sketcher.Constraint("Horizontal", 3),
    Sketcher.Constraint("Vertical", 4),
    Sketcher.Constraint("Horizontal", 5),
    Sketcher.Constraint("Vertical", 6),
    Sketcher.Constraint("Horizontal", 7),
    Sketcher.Constraint("Vertical", 8),
    Sketcher.Constraint("Horizontal", 9),
    Sketcher.Constraint("Vertical", 10),
    Sketcher.Constraint("Horizontal", 11),
    Sketcher.Constraint("Horizontal", 3, 2, 6, 2),
    Sketcher.Constraint("Horizontal", 1, 2, 8, 2),
    Sketcher.Constraint("Vertical", 0, 2, 3, 2),
    Sketcher.Constraint("Vertical", 6, 2, 9, 2),
    Sketcher.Constraint("Equal", 3, 7),
    Sketcher.Constraint("DistanceX", 5, 1, 5, 2, 3.1),
    Sketcher.Constraint("DistanceY", 0, 2, 0, 1, 1.5),
    Sketcher.Constraint("DistanceY", 2, 2, 2, 1, 1.9),
    Sketcher.Constraint("DistanceY", 4, 2, 4, 1, 1.6),
    Sketcher.Constraint("DistanceY", 4, 2, -1, 1, 49.0),
    Sketcher.Constraint("DistanceX", 1, 2, 1, 1, 1.25),
    Sketcher.Constraint("DistanceX", -1, 1, 0, 2, 8.4),
])
pocket4 = body.newObject("PartDesign::Pocket", "Pocket003")
pocket4.Profile = sketch8
pocket4.Length = 10

doc.recompute()
